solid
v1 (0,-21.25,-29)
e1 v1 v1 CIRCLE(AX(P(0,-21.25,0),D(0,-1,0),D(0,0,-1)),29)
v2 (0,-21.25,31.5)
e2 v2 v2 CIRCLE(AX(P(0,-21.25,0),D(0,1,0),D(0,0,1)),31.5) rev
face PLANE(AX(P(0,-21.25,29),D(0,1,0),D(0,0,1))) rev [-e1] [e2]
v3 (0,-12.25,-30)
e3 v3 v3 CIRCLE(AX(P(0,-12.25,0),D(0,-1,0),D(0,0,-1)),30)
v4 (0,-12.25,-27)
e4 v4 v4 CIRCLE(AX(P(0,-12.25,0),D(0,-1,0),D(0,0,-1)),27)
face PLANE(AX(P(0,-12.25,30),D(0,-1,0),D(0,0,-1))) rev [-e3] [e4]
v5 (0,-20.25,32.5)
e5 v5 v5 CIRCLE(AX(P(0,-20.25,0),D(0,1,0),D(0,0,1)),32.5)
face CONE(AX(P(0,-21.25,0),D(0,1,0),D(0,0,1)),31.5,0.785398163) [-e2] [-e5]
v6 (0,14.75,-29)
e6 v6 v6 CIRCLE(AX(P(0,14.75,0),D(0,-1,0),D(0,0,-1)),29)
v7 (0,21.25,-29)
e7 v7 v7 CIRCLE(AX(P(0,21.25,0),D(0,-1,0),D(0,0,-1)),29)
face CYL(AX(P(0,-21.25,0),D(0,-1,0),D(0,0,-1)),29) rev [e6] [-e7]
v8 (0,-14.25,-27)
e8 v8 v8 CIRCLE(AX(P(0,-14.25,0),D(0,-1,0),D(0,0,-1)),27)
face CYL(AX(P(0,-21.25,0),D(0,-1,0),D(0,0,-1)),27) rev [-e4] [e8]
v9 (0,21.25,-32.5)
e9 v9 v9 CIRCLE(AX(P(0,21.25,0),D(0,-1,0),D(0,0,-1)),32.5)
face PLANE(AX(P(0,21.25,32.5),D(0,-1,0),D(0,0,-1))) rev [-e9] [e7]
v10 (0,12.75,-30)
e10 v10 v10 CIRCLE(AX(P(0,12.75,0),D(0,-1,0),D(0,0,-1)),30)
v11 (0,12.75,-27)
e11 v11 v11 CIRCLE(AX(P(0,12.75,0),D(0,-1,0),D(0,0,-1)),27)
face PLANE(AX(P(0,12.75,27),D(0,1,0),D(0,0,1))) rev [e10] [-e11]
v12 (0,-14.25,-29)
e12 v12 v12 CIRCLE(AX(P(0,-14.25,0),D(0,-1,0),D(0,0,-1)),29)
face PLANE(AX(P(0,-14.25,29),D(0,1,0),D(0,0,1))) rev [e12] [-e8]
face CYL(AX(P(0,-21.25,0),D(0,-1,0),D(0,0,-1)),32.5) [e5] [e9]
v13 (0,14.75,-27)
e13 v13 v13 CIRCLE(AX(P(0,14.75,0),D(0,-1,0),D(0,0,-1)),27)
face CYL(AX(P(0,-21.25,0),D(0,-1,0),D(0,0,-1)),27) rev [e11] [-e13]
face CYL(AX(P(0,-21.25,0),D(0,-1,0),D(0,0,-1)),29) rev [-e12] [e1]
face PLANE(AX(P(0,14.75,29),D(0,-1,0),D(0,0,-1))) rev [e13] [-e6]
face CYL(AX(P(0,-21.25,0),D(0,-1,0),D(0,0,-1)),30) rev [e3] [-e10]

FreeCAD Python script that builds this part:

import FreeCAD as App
import Part
import Sketcher
from FreeCAD import Vector


def edges_at(feature, points):
    """Names of the edges that pass closest to the given points."""
    edges = feature.Shape.Edges
    near = lambda p: min(range(len(edges)), key=lambda i: edges[i].distToShape(Part.Vertex(*p))[0])
    return sorted({f"Edge{near(p) + 1}" for p in points})

doc = App.newDocument("Part")
body = doc.addObject("PartDesign::Body", "Body")

sketch1 = body.newObject("Sketcher::SketchObject", "Sketch")
sketch1.AttachmentSupport = (doc.getObject("YZ_Plane"), [""])
sketch1.MapMode = "FlatFace"
sketch1.addGeometry([
    Part.LineSegment(Vector(-21.25, 29, 0), Vector(-14.25, 29, 0)),
    Part.LineSegment(Vector(-14.25, 29, 0), Vector(-14.25, 27, 0)),
    Part.LineSegment(Vector(-14.25, 27, 0), Vector(-12.25, 27, 0)),
    Part.LineSegment(Vector(-12.25, 27, 0), Vector(-12.25, 30, 0)),
    Part.LineSegment(Vector(-12.25, 30, 0), Vector(12.75, 30, 0)),
    Part.LineSegment(Vector(12.75, 30, 0), Vector(12.75, 27, 0)),
    Part.LineSegment(Vector(12.75, 27, 0), Vector(14.75, 27, 0)),
    Part.LineSegment(Vector(14.75, 27, 0), Vector(14.75, 29, 0)),
    Part.LineSegment(Vector(14.75, 29, 0), Vector(21.25, 29, 0)),
    Part.LineSegment(Vector(21.25, 29, 0), Vector(21.25, 32.5, 0)),
    Part.LineSegment(Vector(21.25, 32.5, 0), Vector(-21.25, 32.5, 0)),
    Part.LineSegment(Vector(-21.25, 32.5, 0), Vector(-21.25, 29, 0)),
], False)
sketch1.addConstraint([
    Sketcher.Constraint("Coincident", 0, 2, 1, 1),
    Sketcher.Constraint("Coincident", 1, 2, 2, 1),
    Sketcher.Constraint("Coincident", 2, 2, 3, 1),
    Sketcher.Constraint("Coincident", 3, 2, 4, 1),
    Sketcher.Constraint("Coincident", 4, 2, 5, 1),
    Sketcher.Constraint("Coincident", 5, 2, 6, 1),
    Sketcher.Constraint("Coincident", 6, 2, 7, 1),
    Sketcher.Constraint("Coincident", 7, 2, 8, 1),
    Sketcher.Constraint("Coincident", 8, 2, 9, 1),
    Sketcher.Constraint("Coincident", 9, 2, 10, 1),
    Sketcher.Constraint("Coincident", 10, 2, 11, 1),
    Sketcher.Constraint("Coincident", 11, 2, 0, 1),
    Sketcher.Constraint("Horizontal", 0),
    Sketcher.Constraint("Vertical", 1),
    Sketcher.Constraint("Horizontal", 2),
    Sketcher.Constraint("Vertical", 3),
    Sketcher.Constraint("Horizontal", 4),
    Sketcher.Constraint("Vertical", 5),
    Sketcher.Constraint("Horizontal", 6),
    Sketcher.Constraint("Vertical", 7),
    Sketcher.Constraint("Horizontal", 8),
    Sketcher.Constraint("Vertical", 9),
    Sketcher.Constraint("Horizontal", 10),
    Sketcher.Constraint("Vertical", 11),
    Sketcher.Constraint("Symmetric", 8, 2, 11, 2, -2),
    Sketcher.Constraint("Horizontal", 2, 2, 5, 2),
    Sketcher.Constraint("Equal", 2, 6),
    Sketcher.Constraint("Equal", 6, 1),
    Sketcher.Constraint("DistanceX", 0, 1, 0, 2, 7.0),
    Sketcher.Constraint("DistanceX", 2, 1, 2, 2, 2.0),
    Sketcher.Constraint("DistanceX", 4, 1, 4, 2, 25.0),
    Sketcher.Constraint("DistanceY", 3, 1, 3, 2, 3.0),
    Sketcher.Constraint("DistanceX", 8, 1, 8, 2, 6.5),
    Sketcher.Constraint("DistanceY", 9, 1, 9, 2, 3.5),
    Sketcher.Constraint("DistanceY", -1, 1, 0, 2, 29.0),
])
revolution = body.newObject("PartDesign::Revolution", "Revolution")
revolution.Profile = sketch1
revolution.ReferenceAxis = (sketch1, ["H_Axis"])
revolution.Angle = 360
doc.recompute()

chamfer = body.newObject("PartDesign::Chamfer", "Chamfer")
chamfer.Base = (revolution, edges_at(revolution, [(0, -21.25, -32.5)]))
chamfer.Size = 1

doc.recompute()
